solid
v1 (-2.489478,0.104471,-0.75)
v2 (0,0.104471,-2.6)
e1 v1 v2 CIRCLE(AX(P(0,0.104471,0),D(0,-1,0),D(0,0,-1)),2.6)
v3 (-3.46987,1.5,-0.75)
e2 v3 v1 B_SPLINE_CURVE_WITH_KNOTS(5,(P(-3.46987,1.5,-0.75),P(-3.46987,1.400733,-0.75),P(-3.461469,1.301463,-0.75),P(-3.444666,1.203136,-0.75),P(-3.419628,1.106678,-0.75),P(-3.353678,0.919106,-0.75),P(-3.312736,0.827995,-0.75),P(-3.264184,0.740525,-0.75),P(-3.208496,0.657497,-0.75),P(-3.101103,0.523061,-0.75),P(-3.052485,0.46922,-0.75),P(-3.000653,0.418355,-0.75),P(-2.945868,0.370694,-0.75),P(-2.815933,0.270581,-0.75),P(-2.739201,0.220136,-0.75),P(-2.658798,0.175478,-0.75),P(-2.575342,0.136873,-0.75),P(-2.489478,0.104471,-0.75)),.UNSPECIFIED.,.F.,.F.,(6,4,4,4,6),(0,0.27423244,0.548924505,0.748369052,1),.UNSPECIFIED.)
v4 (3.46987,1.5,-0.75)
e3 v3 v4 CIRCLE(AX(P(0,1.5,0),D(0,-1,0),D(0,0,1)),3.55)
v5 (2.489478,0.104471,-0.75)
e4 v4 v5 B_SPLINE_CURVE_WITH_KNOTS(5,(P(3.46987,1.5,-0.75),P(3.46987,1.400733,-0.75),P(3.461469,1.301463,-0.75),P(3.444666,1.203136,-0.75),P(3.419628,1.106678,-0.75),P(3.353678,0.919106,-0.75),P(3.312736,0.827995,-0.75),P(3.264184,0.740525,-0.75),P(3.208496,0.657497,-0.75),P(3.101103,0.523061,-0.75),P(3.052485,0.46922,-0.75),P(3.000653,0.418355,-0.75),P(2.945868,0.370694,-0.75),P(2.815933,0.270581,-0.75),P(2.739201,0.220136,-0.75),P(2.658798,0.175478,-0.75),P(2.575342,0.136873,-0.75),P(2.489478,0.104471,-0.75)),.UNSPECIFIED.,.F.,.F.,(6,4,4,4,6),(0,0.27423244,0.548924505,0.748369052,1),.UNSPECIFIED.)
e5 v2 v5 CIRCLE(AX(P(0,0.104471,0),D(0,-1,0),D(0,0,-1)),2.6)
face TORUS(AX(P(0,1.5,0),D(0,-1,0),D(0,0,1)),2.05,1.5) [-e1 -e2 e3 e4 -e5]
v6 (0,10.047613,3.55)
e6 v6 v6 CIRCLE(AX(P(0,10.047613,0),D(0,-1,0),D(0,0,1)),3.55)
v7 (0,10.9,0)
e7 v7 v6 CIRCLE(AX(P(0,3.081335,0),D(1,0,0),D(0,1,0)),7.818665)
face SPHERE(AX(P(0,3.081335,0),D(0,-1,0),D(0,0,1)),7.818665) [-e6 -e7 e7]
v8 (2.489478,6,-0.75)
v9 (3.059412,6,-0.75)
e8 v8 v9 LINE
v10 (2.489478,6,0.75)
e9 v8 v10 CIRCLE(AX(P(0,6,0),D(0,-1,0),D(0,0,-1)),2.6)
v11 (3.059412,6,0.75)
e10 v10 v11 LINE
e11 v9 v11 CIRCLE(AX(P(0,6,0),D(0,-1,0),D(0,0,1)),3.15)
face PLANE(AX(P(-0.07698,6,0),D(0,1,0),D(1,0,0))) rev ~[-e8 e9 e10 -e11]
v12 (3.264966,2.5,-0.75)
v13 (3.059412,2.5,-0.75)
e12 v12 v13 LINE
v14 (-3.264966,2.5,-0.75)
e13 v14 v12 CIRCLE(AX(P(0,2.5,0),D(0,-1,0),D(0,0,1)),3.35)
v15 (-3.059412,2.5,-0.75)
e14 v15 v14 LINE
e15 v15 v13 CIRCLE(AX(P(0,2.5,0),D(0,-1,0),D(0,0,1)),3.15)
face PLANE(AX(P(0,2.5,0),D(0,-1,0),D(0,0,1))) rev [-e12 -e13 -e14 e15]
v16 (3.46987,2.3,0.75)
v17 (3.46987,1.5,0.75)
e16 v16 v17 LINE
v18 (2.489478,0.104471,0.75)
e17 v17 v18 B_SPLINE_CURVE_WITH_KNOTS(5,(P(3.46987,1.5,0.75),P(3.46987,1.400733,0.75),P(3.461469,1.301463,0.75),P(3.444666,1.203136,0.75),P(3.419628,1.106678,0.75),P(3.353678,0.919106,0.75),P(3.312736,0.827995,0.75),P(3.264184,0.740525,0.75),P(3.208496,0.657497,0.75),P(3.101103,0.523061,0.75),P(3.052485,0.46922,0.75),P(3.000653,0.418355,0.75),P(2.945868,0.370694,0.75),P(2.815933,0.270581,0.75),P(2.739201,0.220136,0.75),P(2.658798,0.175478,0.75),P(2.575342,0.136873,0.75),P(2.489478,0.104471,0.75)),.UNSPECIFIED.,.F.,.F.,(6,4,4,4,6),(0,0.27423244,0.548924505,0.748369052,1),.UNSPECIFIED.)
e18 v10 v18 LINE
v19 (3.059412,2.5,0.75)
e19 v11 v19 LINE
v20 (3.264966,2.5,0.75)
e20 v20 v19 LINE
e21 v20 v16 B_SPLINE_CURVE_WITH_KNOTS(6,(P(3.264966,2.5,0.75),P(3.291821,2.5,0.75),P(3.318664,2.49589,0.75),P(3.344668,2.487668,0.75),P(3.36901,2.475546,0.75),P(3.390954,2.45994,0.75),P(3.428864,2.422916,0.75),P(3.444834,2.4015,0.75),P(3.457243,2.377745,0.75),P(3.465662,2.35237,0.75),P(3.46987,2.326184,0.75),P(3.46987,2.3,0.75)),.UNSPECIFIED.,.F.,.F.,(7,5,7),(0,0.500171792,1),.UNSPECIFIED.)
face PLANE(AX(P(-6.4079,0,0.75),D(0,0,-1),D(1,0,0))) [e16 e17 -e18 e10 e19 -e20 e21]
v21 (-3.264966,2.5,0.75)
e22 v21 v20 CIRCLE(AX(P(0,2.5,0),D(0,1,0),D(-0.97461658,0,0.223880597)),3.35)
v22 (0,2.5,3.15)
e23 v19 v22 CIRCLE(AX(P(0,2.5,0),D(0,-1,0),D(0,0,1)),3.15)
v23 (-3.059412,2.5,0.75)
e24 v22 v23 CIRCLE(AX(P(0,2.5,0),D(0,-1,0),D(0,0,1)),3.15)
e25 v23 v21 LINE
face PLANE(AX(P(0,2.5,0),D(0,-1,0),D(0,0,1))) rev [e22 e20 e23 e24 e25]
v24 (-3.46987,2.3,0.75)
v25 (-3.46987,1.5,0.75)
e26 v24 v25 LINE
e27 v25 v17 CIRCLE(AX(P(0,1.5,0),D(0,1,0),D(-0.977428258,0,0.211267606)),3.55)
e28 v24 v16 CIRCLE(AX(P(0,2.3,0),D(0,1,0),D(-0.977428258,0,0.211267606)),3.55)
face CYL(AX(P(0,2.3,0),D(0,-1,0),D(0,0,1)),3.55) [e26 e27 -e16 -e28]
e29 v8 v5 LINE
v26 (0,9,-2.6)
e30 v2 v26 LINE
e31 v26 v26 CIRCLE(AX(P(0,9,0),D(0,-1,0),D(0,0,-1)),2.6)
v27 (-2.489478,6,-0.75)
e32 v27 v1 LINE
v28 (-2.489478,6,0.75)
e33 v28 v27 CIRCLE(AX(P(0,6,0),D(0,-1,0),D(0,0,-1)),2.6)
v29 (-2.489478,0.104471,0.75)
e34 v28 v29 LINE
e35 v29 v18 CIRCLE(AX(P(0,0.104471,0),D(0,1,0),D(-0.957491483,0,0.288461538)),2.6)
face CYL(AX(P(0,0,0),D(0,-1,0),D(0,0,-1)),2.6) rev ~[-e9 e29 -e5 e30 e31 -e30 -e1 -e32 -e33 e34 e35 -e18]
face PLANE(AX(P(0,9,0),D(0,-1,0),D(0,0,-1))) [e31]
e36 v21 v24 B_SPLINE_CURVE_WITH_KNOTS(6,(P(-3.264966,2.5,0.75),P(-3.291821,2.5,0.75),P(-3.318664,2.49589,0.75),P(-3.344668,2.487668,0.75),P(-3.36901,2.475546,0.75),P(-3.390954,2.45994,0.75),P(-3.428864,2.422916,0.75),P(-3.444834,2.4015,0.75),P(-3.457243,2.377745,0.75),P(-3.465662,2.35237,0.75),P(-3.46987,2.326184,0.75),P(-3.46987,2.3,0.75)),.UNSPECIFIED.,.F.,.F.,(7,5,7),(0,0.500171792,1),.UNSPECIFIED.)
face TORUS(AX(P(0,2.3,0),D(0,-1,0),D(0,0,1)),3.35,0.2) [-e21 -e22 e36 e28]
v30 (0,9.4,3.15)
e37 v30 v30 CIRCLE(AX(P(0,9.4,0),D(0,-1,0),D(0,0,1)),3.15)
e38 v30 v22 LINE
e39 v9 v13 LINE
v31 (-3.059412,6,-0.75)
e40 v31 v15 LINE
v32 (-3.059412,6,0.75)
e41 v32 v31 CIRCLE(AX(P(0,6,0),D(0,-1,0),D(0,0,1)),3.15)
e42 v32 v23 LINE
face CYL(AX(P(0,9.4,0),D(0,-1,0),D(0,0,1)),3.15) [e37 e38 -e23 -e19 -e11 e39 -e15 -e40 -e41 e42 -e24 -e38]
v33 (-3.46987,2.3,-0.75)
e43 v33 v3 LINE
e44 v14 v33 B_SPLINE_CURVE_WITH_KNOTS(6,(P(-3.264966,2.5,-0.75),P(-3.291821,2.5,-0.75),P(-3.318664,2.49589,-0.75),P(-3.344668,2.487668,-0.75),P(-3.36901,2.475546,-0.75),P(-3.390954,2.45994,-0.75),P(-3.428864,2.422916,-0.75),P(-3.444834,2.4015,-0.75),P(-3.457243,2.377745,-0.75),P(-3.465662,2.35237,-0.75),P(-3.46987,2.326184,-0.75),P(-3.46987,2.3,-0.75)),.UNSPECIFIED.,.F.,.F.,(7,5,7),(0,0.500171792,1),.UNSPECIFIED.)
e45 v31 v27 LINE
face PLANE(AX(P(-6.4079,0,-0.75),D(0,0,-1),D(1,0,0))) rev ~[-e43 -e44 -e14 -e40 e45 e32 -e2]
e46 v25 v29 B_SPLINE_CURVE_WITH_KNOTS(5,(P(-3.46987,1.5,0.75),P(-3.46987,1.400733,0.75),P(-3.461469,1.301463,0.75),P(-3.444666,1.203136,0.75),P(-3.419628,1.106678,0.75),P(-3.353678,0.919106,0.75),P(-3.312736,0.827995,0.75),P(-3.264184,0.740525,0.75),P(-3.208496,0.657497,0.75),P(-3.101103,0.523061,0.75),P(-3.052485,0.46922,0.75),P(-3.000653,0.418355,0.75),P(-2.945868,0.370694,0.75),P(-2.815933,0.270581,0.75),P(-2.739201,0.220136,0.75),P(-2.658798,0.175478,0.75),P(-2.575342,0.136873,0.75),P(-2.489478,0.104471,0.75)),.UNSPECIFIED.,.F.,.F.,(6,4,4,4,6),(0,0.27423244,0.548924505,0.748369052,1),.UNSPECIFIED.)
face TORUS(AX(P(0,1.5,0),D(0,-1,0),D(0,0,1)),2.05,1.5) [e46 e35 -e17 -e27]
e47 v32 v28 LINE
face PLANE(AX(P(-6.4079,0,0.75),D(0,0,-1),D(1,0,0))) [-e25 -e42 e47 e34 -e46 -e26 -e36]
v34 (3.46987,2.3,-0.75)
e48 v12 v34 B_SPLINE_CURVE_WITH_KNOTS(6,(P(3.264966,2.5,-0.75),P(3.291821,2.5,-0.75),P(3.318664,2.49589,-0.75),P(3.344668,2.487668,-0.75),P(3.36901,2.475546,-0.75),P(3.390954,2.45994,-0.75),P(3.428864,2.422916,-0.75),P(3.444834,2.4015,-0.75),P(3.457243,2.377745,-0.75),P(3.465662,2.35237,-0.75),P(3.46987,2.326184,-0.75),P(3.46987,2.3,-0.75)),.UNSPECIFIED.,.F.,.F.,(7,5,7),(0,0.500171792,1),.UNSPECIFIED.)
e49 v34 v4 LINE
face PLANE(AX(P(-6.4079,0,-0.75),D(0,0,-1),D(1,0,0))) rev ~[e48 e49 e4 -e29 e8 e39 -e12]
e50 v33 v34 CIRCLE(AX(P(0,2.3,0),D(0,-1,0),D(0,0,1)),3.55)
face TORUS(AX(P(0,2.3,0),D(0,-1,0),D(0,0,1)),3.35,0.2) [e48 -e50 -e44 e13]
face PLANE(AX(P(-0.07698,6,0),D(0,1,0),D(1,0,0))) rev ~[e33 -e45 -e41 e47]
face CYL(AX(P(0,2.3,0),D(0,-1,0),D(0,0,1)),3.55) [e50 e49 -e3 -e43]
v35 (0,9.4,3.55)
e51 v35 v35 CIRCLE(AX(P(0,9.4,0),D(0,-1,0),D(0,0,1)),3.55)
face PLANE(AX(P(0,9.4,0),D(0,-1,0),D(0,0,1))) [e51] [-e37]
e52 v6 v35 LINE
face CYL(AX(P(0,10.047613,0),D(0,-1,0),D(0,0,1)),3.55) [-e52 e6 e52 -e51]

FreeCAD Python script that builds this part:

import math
import FreeCAD as App
import Part
import Sketcher
Q = App.Units.Quantity

doc = App.newDocument("Part")
body = doc.addObject("PartDesign::Body", "Body")

# Sketch on YZ plane
sketch1 = doc.addObject("Sketcher::SketchObject", "Sketch")
body.addObject(sketch1)
sketch1.AttachmentSupport = (doc.YZ_Plane, [""])
sketch1.MapMode = "FlatFace"
sketch1.addGeometry([
    Part.LineSegment(App.Vector(9.4, -3.55, 0), App.Vector(10.05, -3.55, 0)),  # 0
    Part.ArcOfCircle(Part.Circle(App.Vector(3.08, 0, 0), App.Vector(0, 0, 1), 7.82), math.radians(-27), math.radians(0)),  # 1
    Part.LineSegment(App.Vector(10.9, 0, 0), App.Vector(0, 0, 0)),  # 2
    Part.LineSegment(App.Vector(0, 0, 0), App.Vector(0, -2.05, 0)),  # 3
    Part.ArcOfCircle(Part.Circle(App.Vector(1.5, -2.05, 0), App.Vector(0, 0, 1), 1.5), math.radians(180), math.radians(270)),  # 4
    Part.LineSegment(App.Vector(1.5, -3.55, 0), App.Vector(2.3, -3.55, 0)),  # 5
    Part.ArcOfCircle(Part.Circle(App.Vector(2.3, -3.35, 0), App.Vector(0, 0, 1), 0.2), math.radians(-90), math.radians(0)),  # 6
    Part.LineSegment(App.Vector(2.5, -3.35, 0), App.Vector(2.5, -3.15, 0)),  # 7
    Part.LineSegment(App.Vector(2.5, -3.15, 0), App.Vector(9.4, -3.15, 0)),  # 8
    Part.LineSegment(App.Vector(9.4, -3.15, 0), App.Vector(9.4, -3.55, 0)),  # 9
], False)
sketch1.addConstraint([
    Sketcher.Constraint("Coincident", 0, 2, 1, 1),
    Sketcher.Constraint("Coincident", 1, 2, 2, 1),
    Sketcher.Constraint("Coincident", 2, 2, 3, 1),
    Sketcher.Constraint("Tangent", 3, 2, 4, 1),
    Sketcher.Constraint("Tangent", 4, 2, 5, 1),
    Sketcher.Constraint("Tangent", 5, 2, 6, 1),
    Sketcher.Constraint("Tangent", 6, 2, 7, 1),
    Sketcher.Constraint("Coincident", 7, 2, 8, 1),
    Sketcher.Constraint("Coincident", 8, 2, 9, 1),
    Sketcher.Constraint("Coincident", 9, 2, 0, 1),
    Sketcher.Constraint("Horizontal", 0),
    Sketcher.Constraint("Horizontal", 2),
    Sketcher.Constraint("Vertical", 3),
    Sketcher.Constraint("Horizontal", 5),
    Sketcher.Constraint("Vertical", 7),
    Sketcher.Constraint("Horizontal", 8),
    Sketcher.Constraint("Vertical", 9),
    Sketcher.Constraint("Coincident", 2, 2, -1, 1),
    Sketcher.Constraint("PointOnObject", 1, 3, -1),
    Sketcher.Constraint("Horizontal", 0, 2, 4, 2),
    Sketcher.Constraint("Radius", 4, Q("1.5 mm")),
    Sketcher.Constraint("Radius", 6, Q("0.2 mm")),
    Sketcher.Constraint("DistanceX", 2, 2, 2, 1, Q("10.9 mm")),
    Sketcher.Constraint("DistanceX", 5, 1, 5, 2, Q("0.8 mm")),
    Sketcher.Constraint("DistanceX", 8, 1, 8, 2, Q("6.9 mm")),
    Sketcher.Constraint("DistanceY", 7, 1, 7, 2, Q("0.2 mm")),
    Sketcher.Constraint("DistanceY", 3, 2, 3, 1, Q("2.05 mm")),
    Sketcher.Constraint("Radius", 1, Q("7.818665 mm")),
])
revolution = doc.addObject("PartDesign::Revolution", "Revolution")
body.addObject(revolution)
revolution.Profile = sketch1
revolution.ReferenceAxis = (sketch1, ["H_Axis"])
revolution.Angle = 360

# Sketch on XZ plane
sketch2 = doc.addObject("Sketcher::SketchObject", "Sketch001")
body.addObject(sketch2)
sketch2.AttachmentSupport = (doc.XZ_Plane, [""])
sketch2.MapMode = "FlatFace"
sketch2.addGeometry(Part.Circle(App.Vector(0, 0, 0), App.Vector(0, 0, 1), 2.6), False)
sketch2.addConstraint([
    Sketcher.Constraint("Coincident", 0, 3, -1, 1),
    Sketcher.Constraint("Diameter", 0, Q("5.2 mm")),
])
pocket1 = doc.addObject("PartDesign::Pocket", "Pocket")
body.addObject(pocket1)
pocket1.Profile = sketch2
pocket1.Length = 9

# Sketch on XZ plane
sketch3 = doc.addObject("Sketcher::SketchObject", "Sketch002")
body.addObject(sketch3)
sketch3.AttachmentSupport = (doc.XZ_Plane, [""])
sketch3.MapMode = "FlatFace"
sketch3.addGeometry([
    Part.LineSegment(App.Vector(-6.4, -0.8, 0), App.Vector(-6.4, 0.8, 0)),
    Part.LineSegment(App.Vector(-6.4, 0.8, 0), App.Vector(6.3, 0.8, 0)),
    Part.LineSegment(App.Vector(6.3, 0.8, 0), App.Vector(6.3, -0.8, 0)),
    Part.LineSegment(App.Vector(6.3, -0.8, 0), App.Vector(-6.4, -0.8, 0)),
], False)
sketch3.addConstraint([
    Sketcher.Constraint("Coincident", 0, 2, 1, 1),
    Sketcher.Constraint("Coincident", 1, 2, 2, 1),
    Sketcher.Constraint("Coincident", 2, 2, 3, 1),
    Sketcher.Constraint("Coincident", 3, 2, 0, 1),
    Sketcher.Constraint("Vertical", 0),
    Sketcher.Constraint("Horizontal", 1),
    Sketcher.Constraint("Vertical", 2),
    Sketcher.Constraint("Horizontal", 3),
    Sketcher.Constraint("DistanceY", 0, 1, 0, 2, Q("1.5 mm")),
    Sketcher.Constraint("DistanceY", -1, 1, 0, 2, Q("0.75 mm")),
    Sketcher.Constraint("DistanceX", 1, 1, 1, 2, Q("12.661839 mm")),
    Sketcher.Constraint("DistanceX", 0, 2, -1, 1, Q("6.4079 mm")),
])
pocket2 = doc.addObject("PartDesign::Pocket", "Pocket001")
body.addObject(pocket2)
pocket2.Profile = sketch3
pocket2.Length = 6

doc.recompute()
